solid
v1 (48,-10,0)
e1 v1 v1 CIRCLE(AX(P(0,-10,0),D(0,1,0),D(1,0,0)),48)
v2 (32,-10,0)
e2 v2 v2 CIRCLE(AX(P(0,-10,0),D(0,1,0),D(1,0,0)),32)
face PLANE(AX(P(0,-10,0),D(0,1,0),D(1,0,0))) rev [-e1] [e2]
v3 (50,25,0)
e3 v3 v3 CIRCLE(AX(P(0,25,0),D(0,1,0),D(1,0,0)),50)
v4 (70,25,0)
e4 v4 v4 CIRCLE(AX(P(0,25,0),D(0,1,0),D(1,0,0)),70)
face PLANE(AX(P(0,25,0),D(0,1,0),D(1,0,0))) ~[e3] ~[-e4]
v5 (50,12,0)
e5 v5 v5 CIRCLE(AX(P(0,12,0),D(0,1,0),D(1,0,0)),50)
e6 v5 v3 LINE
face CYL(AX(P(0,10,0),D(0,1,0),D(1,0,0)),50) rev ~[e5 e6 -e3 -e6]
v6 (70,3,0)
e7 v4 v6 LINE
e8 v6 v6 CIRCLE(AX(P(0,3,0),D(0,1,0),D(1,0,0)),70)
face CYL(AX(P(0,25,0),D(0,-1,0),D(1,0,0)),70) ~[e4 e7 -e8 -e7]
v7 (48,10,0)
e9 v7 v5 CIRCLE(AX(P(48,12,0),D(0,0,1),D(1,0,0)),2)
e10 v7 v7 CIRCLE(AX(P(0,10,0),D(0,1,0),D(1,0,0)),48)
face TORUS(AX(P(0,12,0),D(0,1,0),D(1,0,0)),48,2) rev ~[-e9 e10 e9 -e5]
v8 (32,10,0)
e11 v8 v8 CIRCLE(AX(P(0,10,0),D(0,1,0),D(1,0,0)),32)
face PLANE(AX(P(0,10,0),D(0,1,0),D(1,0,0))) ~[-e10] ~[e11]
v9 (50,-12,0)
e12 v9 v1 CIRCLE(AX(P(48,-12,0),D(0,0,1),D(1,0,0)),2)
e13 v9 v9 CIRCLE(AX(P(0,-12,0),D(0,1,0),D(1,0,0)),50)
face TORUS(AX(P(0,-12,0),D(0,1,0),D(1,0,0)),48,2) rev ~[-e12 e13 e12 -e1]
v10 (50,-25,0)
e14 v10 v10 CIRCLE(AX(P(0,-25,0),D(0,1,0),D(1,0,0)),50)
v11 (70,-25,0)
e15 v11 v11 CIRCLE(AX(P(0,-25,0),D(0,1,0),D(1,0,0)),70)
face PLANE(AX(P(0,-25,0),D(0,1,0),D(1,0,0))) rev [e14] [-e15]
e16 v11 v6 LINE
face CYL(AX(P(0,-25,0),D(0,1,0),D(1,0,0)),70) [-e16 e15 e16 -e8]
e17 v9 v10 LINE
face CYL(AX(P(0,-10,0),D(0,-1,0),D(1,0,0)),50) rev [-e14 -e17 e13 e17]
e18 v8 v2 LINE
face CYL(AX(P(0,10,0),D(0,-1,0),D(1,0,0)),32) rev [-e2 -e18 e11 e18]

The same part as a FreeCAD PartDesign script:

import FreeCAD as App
import Part
import Sketcher
from FreeCAD import Vector
Q = App.Units.Quantity


def edges_at(feature, points):
    """Names of the edges that pass closest to the given points."""
    edges = feature.Shape.Edges
    near = lambda p: min(range(len(edges)), key=lambda i: edges[i].distToShape(Part.Vertex(*p))[0])
    return sorted({f"Edge{near(p) + 1}" for p in points})

doc = App.newDocument("Part")
body = doc.addObject("PartDesign::Body", "Body")

sketch1 = doc.addObject("Sketcher::SketchObject", "Sketch")
body.addObject(sketch1)
sketch1.AttachmentSupport = (doc.XY_Plane, [""])
sketch1.MapMode = "FlatFace"
sketch1.addGeometry([
    Part.LineSegment(Vector(50, 10, 0), Vector(32, 10, 0)),
    Part.LineSegment(Vector(32, 10, 0), Vector(32, -10, 0)),
    Part.LineSegment(Vector(32, -10, 0), Vector(50, -10, 0)),
    Part.LineSegment(Vector(50, -10, 0), Vector(50, -25, 0)),
    Part.LineSegment(Vector(50, -25, 0), Vector(70, -25, 0)),
    Part.LineSegment(Vector(70, -25, 0), Vector(70, 25, 0)),
    Part.LineSegment(Vector(70, 25, 0), Vector(50, 25, 0)),
    Part.LineSegment(Vector(50, 25, 0), Vector(50, 10, 0)),
], False)
sketch1.addConstraint([
    Sketcher.Constraint("Coincident", 0, 2, 1, 1),
    Sketcher.Constraint("Coincident", 1, 2, 2, 1),
    Sketcher.Constraint("Coincident", 2, 2, 3, 1),
    Sketcher.Constraint("Coincident", 3, 2, 4, 1),
    Sketcher.Constraint("Coincident", 4, 2, 5, 1),
    Sketcher.Constraint("Coincident", 5, 2, 6, 1),
    Sketcher.Constraint("Coincident", 6, 2, 7, 1),
    Sketcher.Constraint("Coincident", 7, 2, 0, 1),
    Sketcher.Constraint("Horizontal", 0),
    Sketcher.Constraint("Vertical", 1),
    Sketcher.Constraint("Horizontal", 2),
    Sketcher.Constraint("Vertical", 3),
    Sketcher.Constraint("Horizontal", 4),
    Sketcher.Constraint("Vertical", 5),
    Sketcher.Constraint("Horizontal", 6),
    Sketcher.Constraint("Vertical", 7),
    Sketcher.Constraint("Symmetric", 3, 2, 6, 2, -1),
    Sketcher.Constraint("Equal", 6, 1),
    Sketcher.Constraint("Equal", 3, 7),
    Sketcher.Constraint("DistanceX", 4, 1, 4, 2, Q("20 mm")),
    Sketcher.Constraint("DistanceY", 3, 2, 3, 1, Q("15 mm")),
    Sketcher.Constraint("DistanceX", -1, 1, 0, 2, Q("32 mm")),
    Sketcher.Constraint("DistanceX", -1, 1, 2, 2, Q("50 mm")),
])
revolution = doc.addObject("PartDesign::Revolution", "Revolution")
body.addObject(revolution)
revolution.Profile = sketch1
revolution.ReferenceAxis = (sketch1, ["V_Axis"])
revolution.Angle = 360
doc.recompute()

fillet = doc.addObject("PartDesign::Fillet", "Fillet")
body.addObject(fillet)
fillet.Base = (revolution, edges_at(revolution, [(-50, 10, 0), (-50, -10, 0)]))
fillet.Radius = 2

doc.recompute()
